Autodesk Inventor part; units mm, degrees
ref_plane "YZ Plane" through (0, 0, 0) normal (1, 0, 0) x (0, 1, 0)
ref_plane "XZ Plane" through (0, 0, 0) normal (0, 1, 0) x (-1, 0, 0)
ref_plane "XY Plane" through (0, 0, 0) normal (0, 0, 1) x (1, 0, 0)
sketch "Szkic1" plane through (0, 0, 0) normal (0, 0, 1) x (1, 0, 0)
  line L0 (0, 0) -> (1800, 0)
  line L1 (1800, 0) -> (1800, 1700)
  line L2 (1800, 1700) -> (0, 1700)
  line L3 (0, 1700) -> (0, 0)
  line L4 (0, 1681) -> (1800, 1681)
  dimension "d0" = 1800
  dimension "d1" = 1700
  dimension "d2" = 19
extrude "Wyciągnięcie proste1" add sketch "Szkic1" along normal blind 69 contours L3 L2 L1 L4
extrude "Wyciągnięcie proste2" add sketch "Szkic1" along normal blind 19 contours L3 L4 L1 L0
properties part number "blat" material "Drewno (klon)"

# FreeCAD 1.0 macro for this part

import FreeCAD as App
import Part
import Sketcher
from FreeCAD import Vector


def add_polygon(sketch, points):
    """Adds a closed chain of lines whose ends are joined by coincident constraints."""
    first, n = sketch.GeometryCount, len(points)
    for a, b in zip(points, points[1:] + points[:1]):
        sketch.addGeometry(Part.LineSegment(App.Vector(*a, 0), App.Vector(*b, 0)), False)
    for i in range(n):
        sketch.addConstraint(Sketcher.Constraint("Coincident", first + i, 2, first + (i + 1) % n, 1))

doc = App.newDocument("Part")
body = doc.addObject("PartDesign::Body", "Body")

sketch1 = body.newObject("Sketcher::SketchObject", "Sketch")
sketch1.AttachmentSupport = (doc.getObject("XY_Plane"), [""])
sketch1.MapMode = "FlatFace"
add_polygon(sketch1, [(0, 1700), (0, 1681), (1800, 1681), (1800, 1700)])
sketch1.addConstraint([
    Sketcher.Constraint("Vertical", 0),
    Sketcher.Constraint("Horizontal", 1),
    Sketcher.Constraint("Vertical", 2),
    Sketcher.Constraint("Horizontal", 3),
    Sketcher.Constraint("PointOnObject", 0, 2, -2),
    Sketcher.Constraint("DistanceX", 1, 1, 1, 2, 1800.0),
    Sketcher.Constraint("DistanceY", 0, 2, 0, 1, 19.0),
    Sketcher.Constraint("DistanceY", -1, 1, 2, 2, 1700.0),
])
pad1 = body.newObject("PartDesign::Pad", "Pad")
pad1.Profile = sketch1
pad1.Length = 69

sketch2 = body.newObject("Sketcher::SketchObject", "Sketch001")
sketch2.AttachmentSupport = (doc.getObject("XY_Plane"), [""])
sketch2.MapMode = "FlatFace"
add_polygon(sketch2, [(0, 1681), (0, 0), (1800, 0), (1800, 1681)])
sketch2.addConstraint([
    Sketcher.Constraint("Vertical", 0),
    Sketcher.Constraint("Horizontal", 1),
    Sketcher.Constraint("Vertical", 2),
    Sketcher.Constraint("Horizontal", 3),
    Sketcher.Constraint("Coincident", 0, 2, -1, 1),
    Sketcher.Constraint("DistanceX", 1, 1, 1, 2, 1800.0),
    Sketcher.Constraint("DistanceY", 0, 2, 0, 1, 1681.0),
])
pad2 = body.newObject("PartDesign::Pad", "Pad001")
pad2.Profile = sketch2
pad2.Length = 19

doc.recompute()
